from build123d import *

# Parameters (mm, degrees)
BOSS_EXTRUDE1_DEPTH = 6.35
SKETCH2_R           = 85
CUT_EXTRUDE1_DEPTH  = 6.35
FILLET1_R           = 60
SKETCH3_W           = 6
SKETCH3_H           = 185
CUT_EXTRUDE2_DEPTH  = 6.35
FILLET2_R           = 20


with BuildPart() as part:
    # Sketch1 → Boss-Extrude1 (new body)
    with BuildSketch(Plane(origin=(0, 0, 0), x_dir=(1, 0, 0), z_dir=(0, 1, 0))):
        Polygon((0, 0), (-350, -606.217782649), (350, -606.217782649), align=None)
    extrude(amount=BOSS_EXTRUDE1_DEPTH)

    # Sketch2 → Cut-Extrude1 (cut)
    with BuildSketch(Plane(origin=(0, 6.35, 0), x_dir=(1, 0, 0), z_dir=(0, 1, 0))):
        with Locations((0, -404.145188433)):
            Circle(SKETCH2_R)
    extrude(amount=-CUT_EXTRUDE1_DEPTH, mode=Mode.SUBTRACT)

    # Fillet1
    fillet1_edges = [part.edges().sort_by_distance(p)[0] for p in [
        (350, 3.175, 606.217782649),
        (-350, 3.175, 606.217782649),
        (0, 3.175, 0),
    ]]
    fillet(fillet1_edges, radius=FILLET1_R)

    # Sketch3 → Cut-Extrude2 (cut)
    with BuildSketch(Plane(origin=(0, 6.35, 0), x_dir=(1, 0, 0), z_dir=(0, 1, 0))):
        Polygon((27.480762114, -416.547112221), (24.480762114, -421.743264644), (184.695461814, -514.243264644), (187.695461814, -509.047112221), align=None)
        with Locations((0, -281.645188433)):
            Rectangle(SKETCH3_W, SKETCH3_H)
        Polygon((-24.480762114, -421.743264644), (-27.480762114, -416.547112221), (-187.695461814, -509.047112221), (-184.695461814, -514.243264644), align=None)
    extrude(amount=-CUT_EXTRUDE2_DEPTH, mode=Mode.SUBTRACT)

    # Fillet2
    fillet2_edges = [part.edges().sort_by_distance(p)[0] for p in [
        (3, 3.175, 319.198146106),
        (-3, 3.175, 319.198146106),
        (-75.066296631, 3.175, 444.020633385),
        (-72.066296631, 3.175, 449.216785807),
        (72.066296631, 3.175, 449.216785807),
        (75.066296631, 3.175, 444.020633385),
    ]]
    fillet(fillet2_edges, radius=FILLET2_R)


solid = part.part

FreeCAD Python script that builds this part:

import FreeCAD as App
import Part
import Sketcher
from FreeCAD import Vector
Q = App.Units.Quantity


def edges_at(feature, points):
    """Names of the edges that pass closest to the given points."""
    edges = feature.Shape.Edges
    near = lambda p: min(range(len(edges)), key=lambda i: edges[i].distToShape(Part.Vertex(*p))[0])
    return sorted({f"Edge{near(p) + 1}" for p in points})


def add_polygon(sketch, points):
    """Adds a closed chain of lines whose ends are joined by coincident constraints."""
    first, n = sketch.GeometryCount, len(points)
    for a, b in zip(points, points[1:] + points[:1]):
        sketch.addGeometry(Part.LineSegment(App.Vector(*a, 0), App.Vector(*b, 0)), False)
    for i in range(n):
        sketch.addConstraint(Sketcher.Constraint("Coincident", first + i, 2, first + (i + 1) % n, 1))

doc = App.newDocument("Part")
body = doc.addObject("PartDesign::Body", "Body")

# Sketch on XZ plane
sketch1 = body.newObject("Sketcher::SketchObject", "Sketch")
sketch1.AttachmentSupport = (doc.getObject("XZ_Plane"), [""])
sketch1.MapMode = "FlatFace"
add_polygon(sketch1, [(0, 0), (-350, 606), (350, 606)])  # lines 0-2
sketch1.addConstraint([
    Sketcher.Constraint("Horizontal", 1),
    Sketcher.Constraint("Coincident", 2, 2, -1, 1),
    Sketcher.Constraint("Equal", 0, 2),
    Sketcher.Constraint("DistanceX", 1, 1, 1, 2, Q("700 mm")),
    Sketcher.Constraint("Angle", 0, Q("120 deg")),
])
pad1 = body.newObject("PartDesign::Pad", "Pad")
pad1.Profile = sketch1
pad1.Length = 6.35
pad1.Reversed = True

# Sketch on XZ plane
sketch2 = body.newObject("Sketcher::SketchObject", "Sketch001")
sketch2.AttachmentSupport = (doc.getObject("XZ_Plane"), [""])
sketch2.MapMode = "FlatFace"
sketch2.AttachmentOffset = App.Placement(Vector(0, 0, -6.35), App.Rotation())
sketch2.addGeometry(Part.Circle(Vector(0, 404, 0), Vector(0, 0, 1), 85), False)
sketch2.addConstraint([
    Sketcher.Constraint("PointOnObject", 0, 3, -2),
    Sketcher.Constraint("Diameter", 0, Q("170 mm")),
    Sketcher.Constraint("DistanceY", -1, 1, 0, 3, Q("404.145188 mm")),
])
pocket1 = body.newObject("PartDesign::Pocket", "Pocket")
pocket1.Profile = sketch2
pocket1.Length = 6.35
pocket1.Reversed = True
doc.recompute()

fillet = body.newObject("PartDesign::Fillet", "Fillet")
fillet.Base = (pocket1, edges_at(pocket1, [(350, 3.175, 606.218), (-350, 3.175, 606.218), (0, 3.175, 0)]))
fillet.Radius = 60

# Sketch on XZ plane
sketch3 = body.newObject("Sketcher::SketchObject", "Sketch002")
sketch3.AttachmentSupport = (doc.getObject("XZ_Plane"), [""])
sketch3.MapMode = "FlatFace"
sketch3.AttachmentOffset = App.Placement(Vector(0, 0, -6.35), App.Rotation())
add_polygon(sketch3, [(27, 417), (24, 422), (185, 514), (188, 509)])  # lines 0-3
add_polygon(sketch3, [(-3, 189), (-3, 374), (3, 374), (3, 189)])  # lines 4-7
add_polygon(sketch3, [(-24, 422), (-27, 417), (-188, 509), (-185, 514)])  # lines 8-11
sketch3.addConstraint([
    Sketcher.Constraint("Vertical", 4),
    Sketcher.Constraint("Horizontal", 5),
    Sketcher.Constraint("Vertical", 6),
    Sketcher.Constraint("Horizontal", 7),
    Sketcher.Constraint("Symmetric", 3, 2, 8, 2, -2),
    Sketcher.Constraint("Symmetric", 2, 2, 9, 2, -2),
    Sketcher.Constraint("Symmetric", 1, 2, 10, 2, -2),
    Sketcher.Constraint("Symmetric", 0, 2, 11, 2, -2),
    Sketcher.Constraint("Perpendicular", 0, 1),
    Sketcher.Constraint("Perpendicular", 1, 2),
    Sketcher.Constraint("Perpendicular", 2, 3),
    Sketcher.Constraint("DistanceX", 5, 1, 5, 2, Q("6 mm")),
    Sketcher.Constraint("DistanceY", 4, 1, 4, 2, Q("185 mm")),
    Sketcher.Constraint("Angle", 0, Q("120 deg")),
    Sketcher.Constraint("Distance", 0, Q("6 mm")),
    Sketcher.Constraint("Distance", 1, Q("185 mm")),
    Sketcher.Constraint("DistanceX", 4, 2, -1, 1, Q("3 mm")),
    Sketcher.Constraint("DistanceX", -1, 1, 1, 2, Q("184.695462 mm")),
    Sketcher.Constraint("DistanceY", -1, 1, 4, 2, Q("374.145188 mm")),
    Sketcher.Constraint("DistanceY", -1, 1, 0, 2, Q("421.743265 mm")),
])
pocket2 = body.newObject("PartDesign::Pocket", "Pocket001")
pocket2.Profile = sketch3
pocket2.Length = 6.35
pocket2.Reversed = True
doc.recompute()

fillet2 = body.newObject("PartDesign::Fillet", "Fillet001")
fillet2.Base = (pocket2, edges_at(pocket2, [
    (3, 3.175, 319.198),
    (-3, 3.175, 319.198),
    (-75.066, 3.175, 444.021),
    (-72.066, 3.175, 449.217),
    (72.066, 3.175, 449.217),
    (75.066, 3.175, 444.021),
]))
fillet2.Radius = 20

doc.recompute()
